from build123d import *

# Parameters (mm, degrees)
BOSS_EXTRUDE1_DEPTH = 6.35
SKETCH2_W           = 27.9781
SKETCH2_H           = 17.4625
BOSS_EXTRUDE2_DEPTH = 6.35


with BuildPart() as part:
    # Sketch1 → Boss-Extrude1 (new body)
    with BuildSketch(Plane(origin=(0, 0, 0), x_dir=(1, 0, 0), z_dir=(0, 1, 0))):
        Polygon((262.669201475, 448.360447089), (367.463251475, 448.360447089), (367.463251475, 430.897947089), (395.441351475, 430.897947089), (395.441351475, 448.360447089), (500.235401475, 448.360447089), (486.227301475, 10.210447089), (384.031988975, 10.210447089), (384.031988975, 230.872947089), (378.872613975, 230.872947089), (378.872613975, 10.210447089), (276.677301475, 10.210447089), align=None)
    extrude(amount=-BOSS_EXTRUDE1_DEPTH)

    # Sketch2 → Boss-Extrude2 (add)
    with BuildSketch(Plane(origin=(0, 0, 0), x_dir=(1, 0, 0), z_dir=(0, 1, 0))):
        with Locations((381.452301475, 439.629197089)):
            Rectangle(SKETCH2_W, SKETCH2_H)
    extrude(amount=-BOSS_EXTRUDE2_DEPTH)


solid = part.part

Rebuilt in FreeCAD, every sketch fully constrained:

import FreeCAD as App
import Part
import Sketcher
Q = App.Units.Quantity

doc = App.newDocument("Part")
params = doc.addObject("Spreadsheet::Sheet", "Params")
for row, (alias, value) in enumerate([
    ("sketch1_width", "0.203125 in"),
    ("sketch1_height", "8.6875 in"),
    ("sketch1_height2", "0.6875 in"),
    ("pad1_length", "0.25 in"),
    ("sketch2_height", "0.6875 in"),
    ("pad2_length", "0.25 in"),
], start=1):
    params.set(f"A{row}", alias)
    params.set(f"B{row}", "=" + value)
    params.setAlias(f"B{row}", alias)

body = doc.addObject("PartDesign::Body", "Body")

# Sketch on XZ plane
sketch1 = body.newObject("Sketcher::SketchObject", "Sketch")
sketch1.AttachmentSupport = (doc.getObject("XZ_Plane"), [""])
sketch1.MapMode = "FlatFace"
sketch1.addGeometry([
    Part.LineSegment(App.Vector(367, -448, 0), App.Vector(263, -448, 0)),  # 0
    Part.LineSegment(App.Vector(263, -448, 0), App.Vector(277, -10, 0)),  # 1
    Part.LineSegment(App.Vector(277, -10, 0), App.Vector(379, -10, 0)),  # 2
    Part.LineSegment(App.Vector(379, -10, 0), App.Vector(379, -231, 0)),  # 3
    Part.LineSegment(App.Vector(379, -231, 0), App.Vector(384, -231, 0)),  # 4
    Part.LineSegment(App.Vector(384, -231, 0), App.Vector(384, -10, 0)),  # 5
    Part.LineSegment(App.Vector(384, -10, 0), App.Vector(486, -10, 0)),  # 6
    Part.LineSegment(App.Vector(486, -10, 0), App.Vector(500, -448, 0)),  # 7
    Part.LineSegment(App.Vector(500, -448, 0), App.Vector(395, -448, 0)),  # 8
    Part.LineSegment(App.Vector(395, -448, 0), App.Vector(395, -431, 0)),  # 9
    Part.LineSegment(App.Vector(395, -431, 0), App.Vector(367, -431, 0)),  # 10
    Part.LineSegment(App.Vector(367, -431, 0), App.Vector(367, -448, 0)),  # 11
], False)
sketch1.addConstraint([
    Sketcher.Constraint("Coincident", 0, 2, 1, 1),
    Sketcher.Constraint("Coincident", 1, 2, 2, 1),
    Sketcher.Constraint("Coincident", 2, 2, 3, 1),
    Sketcher.Constraint("Coincident", 3, 2, 4, 1),
    Sketcher.Constraint("Coincident", 4, 2, 5, 1),
    Sketcher.Constraint("Coincident", 5, 2, 6, 1),
    Sketcher.Constraint("Coincident", 6, 2, 7, 1),
    Sketcher.Constraint("Coincident", 7, 2, 8, 1),
    Sketcher.Constraint("Coincident", 8, 2, 9, 1),
    Sketcher.Constraint("Coincident", 9, 2, 10, 1),
    Sketcher.Constraint("Coincident", 10, 2, 11, 1),
    Sketcher.Constraint("Coincident", 11, 2, 0, 1),
    Sketcher.Constraint("Horizontal", 0),
    Sketcher.Constraint("Horizontal", 2),
    Sketcher.Constraint("Vertical", 3),
    Sketcher.Constraint("Horizontal", 4),
    Sketcher.Constraint("Vertical", 5),
    Sketcher.Constraint("Horizontal", 6),
    Sketcher.Constraint("Horizontal", 8),
    Sketcher.Constraint("Vertical", 9),
    Sketcher.Constraint("Horizontal", 10),
    Sketcher.Constraint("Vertical", 11),
    Sketcher.Constraint("Horizontal", 2, 2, 5, 2),
    Sketcher.Constraint("Horizontal", 0, 2, 7, 2),
    Sketcher.Constraint("Equal", 2, 6),
    Sketcher.Constraint("Equal", 0, 8),
    Sketcher.Constraint("Equal", 1, 7),
    Sketcher.Constraint("DistanceX", 4, 1, 4, 2, Q("0.203125 in")),
    Sketcher.Constraint("DistanceY", 3, 2, 3, 1, Q("8.6875 in")),
    Sketcher.Constraint("DistanceY", 9, 1, 9, 2, Q("0.6875 in")),
    Sketcher.Constraint("DistanceY", 0, 2, 1, 2, Q("17.25 in")),
    Sketcher.Constraint("DistanceX", 1, 2, 6, 2, Q("8.25 in")),
    Sketcher.Constraint("DistanceX", 10, 2, 10, 1, Q("1.1015 in")),
    Sketcher.Constraint("DistanceX", 0, 2, 7, 2, Q("9.353 in")),
    Sketcher.Constraint("DistanceX", -1, 1, 0, 2, 262.669201),
    Sketcher.Constraint("DistanceY", 0, 2, -1, 1, 448.360447),
])
sketch1.setExpression("Constraints[27]", "Params.sketch1_width")
sketch1.setExpression("Constraints[28]", "Params.sketch1_height")
sketch1.setExpression("Constraints[29]", "Params.sketch1_height2")
pad1 = body.newObject("PartDesign::Pad", "Pad")
pad1.Profile = sketch1
pad1.setExpression("Length", "Params.pad1_length")

# Sketch on XZ plane
sketch2 = body.newObject("Sketcher::SketchObject", "Sketch001")
sketch2.AttachmentSupport = (doc.getObject("XZ_Plane"), [""])
sketch2.MapMode = "FlatFace"
sketch2.addGeometry([
    Part.LineSegment(App.Vector(367, -448, 0), App.Vector(367, -431, 0)),
    Part.LineSegment(App.Vector(367, -431, 0), App.Vector(395, -431, 0)),
    Part.LineSegment(App.Vector(395, -431, 0), App.Vector(395, -448, 0)),
    Part.LineSegment(App.Vector(395, -448, 0), App.Vector(367, -448, 0)),
], False)
sketch2.addConstraint([
    Sketcher.Constraint("Coincident", 0, 2, 1, 1),
    Sketcher.Constraint("Coincident", 1, 2, 2, 1),
    Sketcher.Constraint("Coincident", 2, 2, 3, 1),
    Sketcher.Constraint("Coincident", 3, 2, 0, 1),
    Sketcher.Constraint("Vertical", 0),
    Sketcher.Constraint("Horizontal", 1),
    Sketcher.Constraint("Vertical", 2),
    Sketcher.Constraint("Horizontal", 3),
    Sketcher.Constraint("DistanceY", 0, 1, 0, 2, Q("0.6875 in")),
    Sketcher.Constraint("DistanceX", 1, 1, 1, 2, Q("1.1015 in")),
    Sketcher.Constraint("DistanceX", -1, 1, 0, 2, 367.463251),
    Sketcher.Constraint("DistanceY", 0, 2, -1, 1, 430.897947),
])
sketch2.setExpression("Constraints[8]", "Params.sketch2_height")
pad2 = body.newObject("PartDesign::Pad", "Pad001")
pad2.Profile = sketch2
pad2.setExpression("Length", "Params.pad2_length")

doc.recompute()
